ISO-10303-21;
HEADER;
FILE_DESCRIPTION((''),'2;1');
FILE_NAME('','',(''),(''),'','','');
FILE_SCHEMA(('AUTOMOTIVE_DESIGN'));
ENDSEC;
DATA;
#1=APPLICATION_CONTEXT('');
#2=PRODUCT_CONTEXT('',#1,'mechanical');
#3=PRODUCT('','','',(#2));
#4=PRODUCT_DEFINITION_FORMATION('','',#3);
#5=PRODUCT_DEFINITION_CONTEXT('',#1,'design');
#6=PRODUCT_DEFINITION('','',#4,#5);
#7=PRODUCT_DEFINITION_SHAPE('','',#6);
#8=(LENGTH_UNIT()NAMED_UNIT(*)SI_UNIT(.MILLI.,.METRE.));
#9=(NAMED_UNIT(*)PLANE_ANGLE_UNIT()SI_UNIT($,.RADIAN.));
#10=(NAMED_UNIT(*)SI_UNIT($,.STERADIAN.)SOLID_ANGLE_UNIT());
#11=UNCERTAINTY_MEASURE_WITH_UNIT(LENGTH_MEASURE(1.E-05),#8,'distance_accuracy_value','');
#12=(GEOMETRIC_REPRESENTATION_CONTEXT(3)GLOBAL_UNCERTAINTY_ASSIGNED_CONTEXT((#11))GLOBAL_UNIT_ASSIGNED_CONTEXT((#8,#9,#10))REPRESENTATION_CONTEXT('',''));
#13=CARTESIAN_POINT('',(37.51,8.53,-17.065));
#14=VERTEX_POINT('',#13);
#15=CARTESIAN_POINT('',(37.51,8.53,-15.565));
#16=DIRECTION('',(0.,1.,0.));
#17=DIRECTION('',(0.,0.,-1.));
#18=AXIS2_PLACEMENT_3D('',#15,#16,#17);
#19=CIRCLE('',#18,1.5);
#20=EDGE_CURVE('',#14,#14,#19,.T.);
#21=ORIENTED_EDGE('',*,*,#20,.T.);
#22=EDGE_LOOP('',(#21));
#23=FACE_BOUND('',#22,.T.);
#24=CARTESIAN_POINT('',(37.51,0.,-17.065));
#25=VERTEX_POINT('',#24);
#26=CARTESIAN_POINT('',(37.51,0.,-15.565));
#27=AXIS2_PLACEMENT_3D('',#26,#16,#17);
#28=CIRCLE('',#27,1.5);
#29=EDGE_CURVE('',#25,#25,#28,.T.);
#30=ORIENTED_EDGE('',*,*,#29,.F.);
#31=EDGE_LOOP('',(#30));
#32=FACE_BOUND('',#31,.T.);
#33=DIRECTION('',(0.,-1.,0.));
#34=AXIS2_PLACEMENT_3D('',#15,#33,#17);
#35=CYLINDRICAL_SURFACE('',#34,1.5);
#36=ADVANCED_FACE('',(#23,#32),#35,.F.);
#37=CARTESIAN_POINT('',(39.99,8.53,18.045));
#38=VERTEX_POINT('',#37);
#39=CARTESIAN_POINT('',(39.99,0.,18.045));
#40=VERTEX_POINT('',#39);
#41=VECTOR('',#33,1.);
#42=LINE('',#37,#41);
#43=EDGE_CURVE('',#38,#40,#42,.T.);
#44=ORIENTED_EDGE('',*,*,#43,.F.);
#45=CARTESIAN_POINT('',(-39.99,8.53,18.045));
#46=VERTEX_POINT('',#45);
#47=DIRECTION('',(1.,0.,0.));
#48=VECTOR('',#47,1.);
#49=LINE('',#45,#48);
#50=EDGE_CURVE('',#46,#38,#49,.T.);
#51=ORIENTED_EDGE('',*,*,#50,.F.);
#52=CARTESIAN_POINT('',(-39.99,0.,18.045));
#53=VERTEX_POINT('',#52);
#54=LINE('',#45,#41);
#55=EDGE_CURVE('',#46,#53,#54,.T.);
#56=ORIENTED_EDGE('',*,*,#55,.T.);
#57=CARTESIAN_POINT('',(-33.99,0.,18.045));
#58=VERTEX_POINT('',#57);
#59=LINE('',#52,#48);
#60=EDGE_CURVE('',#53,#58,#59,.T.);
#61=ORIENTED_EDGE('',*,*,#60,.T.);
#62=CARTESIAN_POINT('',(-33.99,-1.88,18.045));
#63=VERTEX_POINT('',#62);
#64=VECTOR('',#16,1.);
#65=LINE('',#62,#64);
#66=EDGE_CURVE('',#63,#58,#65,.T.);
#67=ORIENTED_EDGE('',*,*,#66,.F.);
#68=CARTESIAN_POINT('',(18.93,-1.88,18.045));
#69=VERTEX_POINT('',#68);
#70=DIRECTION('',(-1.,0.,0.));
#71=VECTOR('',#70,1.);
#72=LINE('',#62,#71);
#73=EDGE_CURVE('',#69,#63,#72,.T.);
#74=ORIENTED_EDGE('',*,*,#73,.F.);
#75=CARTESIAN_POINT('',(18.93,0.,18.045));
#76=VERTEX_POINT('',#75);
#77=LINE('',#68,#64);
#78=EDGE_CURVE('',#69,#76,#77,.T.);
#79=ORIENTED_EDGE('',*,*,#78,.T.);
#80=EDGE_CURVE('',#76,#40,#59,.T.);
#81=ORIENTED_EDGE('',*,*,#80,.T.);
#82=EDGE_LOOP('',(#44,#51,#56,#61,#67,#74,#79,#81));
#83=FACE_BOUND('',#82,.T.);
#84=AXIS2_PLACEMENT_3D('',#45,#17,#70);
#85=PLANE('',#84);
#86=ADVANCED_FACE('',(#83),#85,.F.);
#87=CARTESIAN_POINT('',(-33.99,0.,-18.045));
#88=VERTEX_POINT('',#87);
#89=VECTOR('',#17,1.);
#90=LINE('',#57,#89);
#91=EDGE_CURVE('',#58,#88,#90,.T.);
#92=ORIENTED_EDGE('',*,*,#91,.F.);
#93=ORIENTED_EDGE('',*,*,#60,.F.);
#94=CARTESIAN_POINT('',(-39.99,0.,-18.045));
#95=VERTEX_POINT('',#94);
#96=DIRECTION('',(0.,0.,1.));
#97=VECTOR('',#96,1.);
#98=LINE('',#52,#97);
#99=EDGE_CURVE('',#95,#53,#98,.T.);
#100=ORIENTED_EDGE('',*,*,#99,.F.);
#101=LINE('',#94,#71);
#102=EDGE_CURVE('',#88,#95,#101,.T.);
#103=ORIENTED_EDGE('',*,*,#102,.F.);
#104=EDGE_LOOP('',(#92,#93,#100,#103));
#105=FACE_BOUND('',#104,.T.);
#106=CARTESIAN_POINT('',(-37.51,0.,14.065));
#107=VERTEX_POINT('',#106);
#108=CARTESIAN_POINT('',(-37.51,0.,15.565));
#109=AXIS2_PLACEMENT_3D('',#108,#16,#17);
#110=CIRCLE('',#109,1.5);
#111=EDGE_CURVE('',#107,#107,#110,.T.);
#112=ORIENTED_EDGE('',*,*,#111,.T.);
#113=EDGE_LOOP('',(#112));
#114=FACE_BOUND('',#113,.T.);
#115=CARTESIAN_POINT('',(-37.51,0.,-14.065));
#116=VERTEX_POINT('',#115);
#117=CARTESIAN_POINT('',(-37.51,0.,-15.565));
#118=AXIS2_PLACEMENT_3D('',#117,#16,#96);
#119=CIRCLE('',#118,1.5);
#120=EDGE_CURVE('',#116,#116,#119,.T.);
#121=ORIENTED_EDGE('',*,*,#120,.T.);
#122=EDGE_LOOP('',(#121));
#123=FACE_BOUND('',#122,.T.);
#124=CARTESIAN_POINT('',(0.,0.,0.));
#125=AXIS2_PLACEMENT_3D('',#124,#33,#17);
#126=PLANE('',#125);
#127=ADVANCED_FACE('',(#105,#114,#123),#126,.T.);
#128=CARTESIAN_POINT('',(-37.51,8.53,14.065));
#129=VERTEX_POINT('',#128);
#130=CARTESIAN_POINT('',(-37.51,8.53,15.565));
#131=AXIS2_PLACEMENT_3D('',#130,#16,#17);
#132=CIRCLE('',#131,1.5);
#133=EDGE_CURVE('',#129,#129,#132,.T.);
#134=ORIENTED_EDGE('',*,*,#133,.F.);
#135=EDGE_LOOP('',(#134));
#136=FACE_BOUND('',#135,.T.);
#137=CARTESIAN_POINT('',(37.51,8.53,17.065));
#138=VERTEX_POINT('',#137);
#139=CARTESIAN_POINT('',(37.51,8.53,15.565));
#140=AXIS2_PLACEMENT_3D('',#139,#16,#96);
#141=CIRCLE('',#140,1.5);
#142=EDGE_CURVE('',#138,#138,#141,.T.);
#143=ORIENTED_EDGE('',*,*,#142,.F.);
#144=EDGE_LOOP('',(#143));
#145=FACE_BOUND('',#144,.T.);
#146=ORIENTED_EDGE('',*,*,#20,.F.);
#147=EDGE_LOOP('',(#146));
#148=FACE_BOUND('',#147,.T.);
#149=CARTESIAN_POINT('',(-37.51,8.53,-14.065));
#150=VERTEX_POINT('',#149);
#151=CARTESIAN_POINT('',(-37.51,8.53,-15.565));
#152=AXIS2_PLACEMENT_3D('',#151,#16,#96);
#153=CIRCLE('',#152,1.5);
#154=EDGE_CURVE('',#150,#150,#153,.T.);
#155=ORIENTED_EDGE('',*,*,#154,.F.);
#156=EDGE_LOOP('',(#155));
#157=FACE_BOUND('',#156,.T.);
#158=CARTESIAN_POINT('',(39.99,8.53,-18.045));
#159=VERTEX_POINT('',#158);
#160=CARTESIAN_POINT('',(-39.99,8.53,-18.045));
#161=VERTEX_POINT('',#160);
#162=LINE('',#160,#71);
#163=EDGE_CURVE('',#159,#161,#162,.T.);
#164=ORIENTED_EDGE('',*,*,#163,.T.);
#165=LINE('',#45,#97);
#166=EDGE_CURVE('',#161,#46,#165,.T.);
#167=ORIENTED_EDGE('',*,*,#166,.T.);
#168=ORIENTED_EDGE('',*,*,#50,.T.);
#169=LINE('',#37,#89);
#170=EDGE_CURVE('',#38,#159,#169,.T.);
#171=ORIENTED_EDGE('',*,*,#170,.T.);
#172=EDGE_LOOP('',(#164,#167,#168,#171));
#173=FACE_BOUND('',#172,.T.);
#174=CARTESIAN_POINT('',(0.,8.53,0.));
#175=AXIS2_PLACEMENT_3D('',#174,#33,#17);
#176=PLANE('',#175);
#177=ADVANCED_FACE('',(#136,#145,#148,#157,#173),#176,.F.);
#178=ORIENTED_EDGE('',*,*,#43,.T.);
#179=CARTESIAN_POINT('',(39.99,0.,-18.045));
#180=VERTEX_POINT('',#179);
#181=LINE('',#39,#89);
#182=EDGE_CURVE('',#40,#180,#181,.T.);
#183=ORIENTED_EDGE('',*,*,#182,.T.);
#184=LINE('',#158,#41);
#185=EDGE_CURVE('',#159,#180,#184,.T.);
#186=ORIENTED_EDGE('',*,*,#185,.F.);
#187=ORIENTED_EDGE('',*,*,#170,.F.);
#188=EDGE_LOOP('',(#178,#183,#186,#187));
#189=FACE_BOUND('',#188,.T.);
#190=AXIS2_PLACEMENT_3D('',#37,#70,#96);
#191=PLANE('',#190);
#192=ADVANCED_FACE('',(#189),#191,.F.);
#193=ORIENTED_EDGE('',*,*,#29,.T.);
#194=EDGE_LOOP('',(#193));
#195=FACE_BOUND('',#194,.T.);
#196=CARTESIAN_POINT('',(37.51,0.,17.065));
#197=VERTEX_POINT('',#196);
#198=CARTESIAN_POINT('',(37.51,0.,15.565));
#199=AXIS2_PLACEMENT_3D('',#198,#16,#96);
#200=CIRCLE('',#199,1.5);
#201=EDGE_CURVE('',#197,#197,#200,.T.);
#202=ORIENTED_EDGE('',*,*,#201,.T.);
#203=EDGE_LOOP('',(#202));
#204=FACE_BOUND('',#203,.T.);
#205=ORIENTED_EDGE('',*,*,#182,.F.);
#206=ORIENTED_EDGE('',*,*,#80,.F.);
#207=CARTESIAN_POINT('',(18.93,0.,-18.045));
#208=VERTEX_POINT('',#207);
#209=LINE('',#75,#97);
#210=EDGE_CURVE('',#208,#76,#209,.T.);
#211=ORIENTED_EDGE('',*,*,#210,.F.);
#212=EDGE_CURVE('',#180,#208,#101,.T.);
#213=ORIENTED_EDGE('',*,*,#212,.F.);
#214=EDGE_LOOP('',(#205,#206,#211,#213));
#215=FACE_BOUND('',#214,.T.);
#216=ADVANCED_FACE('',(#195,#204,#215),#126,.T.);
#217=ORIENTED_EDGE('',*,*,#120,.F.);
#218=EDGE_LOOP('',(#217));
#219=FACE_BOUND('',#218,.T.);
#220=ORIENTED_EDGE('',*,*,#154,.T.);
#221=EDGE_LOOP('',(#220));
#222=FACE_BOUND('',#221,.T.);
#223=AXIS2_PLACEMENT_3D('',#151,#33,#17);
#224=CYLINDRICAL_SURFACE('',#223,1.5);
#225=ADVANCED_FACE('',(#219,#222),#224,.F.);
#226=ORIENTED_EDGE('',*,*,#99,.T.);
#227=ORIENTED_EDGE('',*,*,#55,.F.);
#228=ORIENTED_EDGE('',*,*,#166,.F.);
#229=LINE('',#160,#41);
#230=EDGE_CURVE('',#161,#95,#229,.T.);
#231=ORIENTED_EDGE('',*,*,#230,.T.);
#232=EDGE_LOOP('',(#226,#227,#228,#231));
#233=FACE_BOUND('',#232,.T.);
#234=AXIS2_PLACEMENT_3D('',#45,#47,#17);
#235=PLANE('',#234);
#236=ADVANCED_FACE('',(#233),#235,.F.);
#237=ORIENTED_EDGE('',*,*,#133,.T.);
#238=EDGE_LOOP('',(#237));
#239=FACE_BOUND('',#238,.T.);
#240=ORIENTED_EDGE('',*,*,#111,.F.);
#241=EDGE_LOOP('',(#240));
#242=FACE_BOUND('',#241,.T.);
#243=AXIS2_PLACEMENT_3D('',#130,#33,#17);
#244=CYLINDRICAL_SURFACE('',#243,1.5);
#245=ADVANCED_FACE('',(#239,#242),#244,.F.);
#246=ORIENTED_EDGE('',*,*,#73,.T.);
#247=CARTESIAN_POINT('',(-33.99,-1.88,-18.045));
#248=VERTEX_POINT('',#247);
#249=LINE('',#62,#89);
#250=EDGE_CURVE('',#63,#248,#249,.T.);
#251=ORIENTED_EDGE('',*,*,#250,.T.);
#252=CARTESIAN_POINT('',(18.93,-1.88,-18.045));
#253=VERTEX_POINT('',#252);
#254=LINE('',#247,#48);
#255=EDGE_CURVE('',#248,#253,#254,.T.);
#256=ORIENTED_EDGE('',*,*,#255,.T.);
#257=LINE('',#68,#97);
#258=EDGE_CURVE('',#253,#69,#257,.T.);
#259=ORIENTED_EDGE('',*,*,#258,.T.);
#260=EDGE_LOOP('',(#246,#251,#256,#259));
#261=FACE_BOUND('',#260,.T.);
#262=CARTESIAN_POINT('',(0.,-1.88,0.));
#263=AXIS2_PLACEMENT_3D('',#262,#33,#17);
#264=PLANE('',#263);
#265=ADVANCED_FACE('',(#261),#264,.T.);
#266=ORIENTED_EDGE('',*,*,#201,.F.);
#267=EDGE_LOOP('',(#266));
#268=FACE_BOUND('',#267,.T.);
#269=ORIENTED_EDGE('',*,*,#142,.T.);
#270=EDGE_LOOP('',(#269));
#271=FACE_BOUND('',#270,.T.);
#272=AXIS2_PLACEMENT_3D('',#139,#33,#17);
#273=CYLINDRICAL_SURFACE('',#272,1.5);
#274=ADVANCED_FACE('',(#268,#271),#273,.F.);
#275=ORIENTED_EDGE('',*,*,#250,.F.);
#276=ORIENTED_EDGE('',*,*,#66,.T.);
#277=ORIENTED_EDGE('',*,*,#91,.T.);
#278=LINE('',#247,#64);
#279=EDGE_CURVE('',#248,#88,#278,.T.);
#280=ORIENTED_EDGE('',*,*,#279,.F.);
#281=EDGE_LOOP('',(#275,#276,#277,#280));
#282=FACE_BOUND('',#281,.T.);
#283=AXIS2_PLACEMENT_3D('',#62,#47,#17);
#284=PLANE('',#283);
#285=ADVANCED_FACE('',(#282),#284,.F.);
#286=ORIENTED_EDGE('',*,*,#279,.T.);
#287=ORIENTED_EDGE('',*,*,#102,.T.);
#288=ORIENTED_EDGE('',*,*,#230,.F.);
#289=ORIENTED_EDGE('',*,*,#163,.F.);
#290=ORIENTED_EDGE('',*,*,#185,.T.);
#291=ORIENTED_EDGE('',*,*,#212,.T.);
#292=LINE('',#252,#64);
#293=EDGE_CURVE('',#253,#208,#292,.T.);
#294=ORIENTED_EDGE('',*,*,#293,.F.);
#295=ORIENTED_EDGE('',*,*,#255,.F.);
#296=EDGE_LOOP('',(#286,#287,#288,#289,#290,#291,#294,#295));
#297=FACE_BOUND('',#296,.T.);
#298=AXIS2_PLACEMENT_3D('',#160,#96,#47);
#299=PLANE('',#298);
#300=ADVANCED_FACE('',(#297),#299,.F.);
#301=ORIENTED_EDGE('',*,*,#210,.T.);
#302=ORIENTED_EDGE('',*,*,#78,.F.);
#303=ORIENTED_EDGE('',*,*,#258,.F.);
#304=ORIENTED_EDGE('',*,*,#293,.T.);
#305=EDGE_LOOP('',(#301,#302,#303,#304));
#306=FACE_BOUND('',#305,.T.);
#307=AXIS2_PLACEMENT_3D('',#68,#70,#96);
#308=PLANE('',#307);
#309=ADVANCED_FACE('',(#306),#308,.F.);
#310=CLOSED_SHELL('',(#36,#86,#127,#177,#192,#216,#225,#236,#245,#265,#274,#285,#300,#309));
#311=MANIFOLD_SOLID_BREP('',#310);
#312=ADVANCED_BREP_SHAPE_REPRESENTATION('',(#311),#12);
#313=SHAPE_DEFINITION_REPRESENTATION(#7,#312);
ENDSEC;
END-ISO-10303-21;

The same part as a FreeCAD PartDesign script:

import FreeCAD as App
import Part
import Sketcher

V = App.Vector
Q = App.Units.Quantity


def add_polygon(sketch, points):
    """Adds a closed chain of lines whose ends are joined by coincident constraints."""
    first, n = sketch.GeometryCount, len(points)
    for a, b in zip(points, points[1:] + points[:1]):
        sketch.addGeometry(Part.LineSegment(App.Vector(*a, 0), App.Vector(*b, 0)), False)
    for i in range(n):
        sketch.addConstraint(Sketcher.Constraint("Coincident", first + i, 2, first + (i + 1) % n, 1))

doc = App.newDocument("Part")
body = doc.addObject("PartDesign::Body", "Body")

sketch1 = body.newObject("Sketcher::SketchObject", "Sketch")
sketch1.AttachmentSupport = (doc.getObject("XZ_Plane"), [""])
sketch1.MapMode = "FlatFace"
add_polygon(sketch1, [(-40, -18), (-40, 18), (40, 18), (40, -18)])
sketch1.addGeometry(Part.Circle(V(-37.5, 15.6, 0), V(0, 0, 1), 1.5), False)
sketch1.addGeometry(Part.Circle(V(37.5, 15.6, 0), V(0, 0, 1), 1.5), False)
sketch1.addGeometry(Part.Circle(V(-37.5, -15.6, 0), V(0, 0, 1), 1.5), False)
sketch1.addGeometry(Part.Circle(V(37.5, -15.6, 0), V(0, 0, 1), 1.5), False)
sketch1.addConstraint(Sketcher.Constraint("Vertical", 0))
sketch1.addConstraint(Sketcher.Constraint("Horizontal", 1))
sketch1.addConstraint(Sketcher.Constraint("Vertical", 2))
sketch1.addConstraint(Sketcher.Constraint("Horizontal", 3))
sketch1.addConstraint(Sketcher.Constraint("Equal", 4, 5))
sketch1.addConstraint(Sketcher.Constraint("Equal", 5, 6))
sketch1.addConstraint(Sketcher.Constraint("Equal", 6, 7))
sketch1.addConstraint(Sketcher.Constraint("Symmetric", 5, 3, 6, 3, -1, 1))
sketch1.addConstraint(Sketcher.Constraint("Symmetric", 4, 3, 7, 3, -1, 1))
sketch1.addConstraint(Sketcher.Constraint("Symmetric", 0, 2, 2, 2, -1, 1))
sketch1.addConstraint(Sketcher.Constraint("Symmetric", 4, 3, 5, 3, -2))
sketch1.addConstraint(Sketcher.Constraint("Diameter", 4, Q("3 mm")))
sketch1.addConstraint(Sketcher.Constraint("DistanceX", 1, 1, 1, 2, Q("79.98 mm")))
sketch1.addConstraint(Sketcher.Constraint("DistanceY", 0, 1, 0, 2, Q("36.09 mm")))
sketch1.addConstraint(Sketcher.Constraint("DistanceX", 0, 2, 5, 3, Q("77.5 mm")))
sketch1.addConstraint(Sketcher.Constraint("DistanceY", 6, 3, 4, 3, Q("31.13 mm")))
pad1 = body.newObject("PartDesign::Pad", "Pad")
pad1.Profile = sketch1
pad1.Length = 8.53
pad1.Reversed = True

sketch2 = body.newObject("Sketcher::SketchObject", "Sketch001")
sketch2.AttachmentSupport = (doc.getObject("XZ_Plane"), [""])
sketch2.MapMode = "FlatFace"
add_polygon(sketch2, [(-34, 18), (-34, -18), (19, -18), (19, 18)])
sketch2.addConstraint(Sketcher.Constraint("Vertical", 0))
sketch2.addConstraint(Sketcher.Constraint("Horizontal", 1))
sketch2.addConstraint(Sketcher.Constraint("Vertical", 2))
sketch2.addConstraint(Sketcher.Constraint("Horizontal", 3))
sketch2.addConstraint(Sketcher.Constraint("DistanceX", 1, 1, 1, 2, Q("52.92 mm")))
sketch2.addConstraint(Sketcher.Constraint("DistanceY", 0, 2, 0, 1, Q("36.09 mm")))
sketch2.addConstraint(Sketcher.Constraint("DistanceX", 0, 2, -1, 1, Q("33.99 mm")))
sketch2.addConstraint(Sketcher.Constraint("DistanceY", 0, 2, -1, 1, Q("18.045 mm")))
pad2 = body.newObject("PartDesign::Pad", "Pad001")
pad2.Profile = sketch2
pad2.Length = 1.88

doc.recompute()
